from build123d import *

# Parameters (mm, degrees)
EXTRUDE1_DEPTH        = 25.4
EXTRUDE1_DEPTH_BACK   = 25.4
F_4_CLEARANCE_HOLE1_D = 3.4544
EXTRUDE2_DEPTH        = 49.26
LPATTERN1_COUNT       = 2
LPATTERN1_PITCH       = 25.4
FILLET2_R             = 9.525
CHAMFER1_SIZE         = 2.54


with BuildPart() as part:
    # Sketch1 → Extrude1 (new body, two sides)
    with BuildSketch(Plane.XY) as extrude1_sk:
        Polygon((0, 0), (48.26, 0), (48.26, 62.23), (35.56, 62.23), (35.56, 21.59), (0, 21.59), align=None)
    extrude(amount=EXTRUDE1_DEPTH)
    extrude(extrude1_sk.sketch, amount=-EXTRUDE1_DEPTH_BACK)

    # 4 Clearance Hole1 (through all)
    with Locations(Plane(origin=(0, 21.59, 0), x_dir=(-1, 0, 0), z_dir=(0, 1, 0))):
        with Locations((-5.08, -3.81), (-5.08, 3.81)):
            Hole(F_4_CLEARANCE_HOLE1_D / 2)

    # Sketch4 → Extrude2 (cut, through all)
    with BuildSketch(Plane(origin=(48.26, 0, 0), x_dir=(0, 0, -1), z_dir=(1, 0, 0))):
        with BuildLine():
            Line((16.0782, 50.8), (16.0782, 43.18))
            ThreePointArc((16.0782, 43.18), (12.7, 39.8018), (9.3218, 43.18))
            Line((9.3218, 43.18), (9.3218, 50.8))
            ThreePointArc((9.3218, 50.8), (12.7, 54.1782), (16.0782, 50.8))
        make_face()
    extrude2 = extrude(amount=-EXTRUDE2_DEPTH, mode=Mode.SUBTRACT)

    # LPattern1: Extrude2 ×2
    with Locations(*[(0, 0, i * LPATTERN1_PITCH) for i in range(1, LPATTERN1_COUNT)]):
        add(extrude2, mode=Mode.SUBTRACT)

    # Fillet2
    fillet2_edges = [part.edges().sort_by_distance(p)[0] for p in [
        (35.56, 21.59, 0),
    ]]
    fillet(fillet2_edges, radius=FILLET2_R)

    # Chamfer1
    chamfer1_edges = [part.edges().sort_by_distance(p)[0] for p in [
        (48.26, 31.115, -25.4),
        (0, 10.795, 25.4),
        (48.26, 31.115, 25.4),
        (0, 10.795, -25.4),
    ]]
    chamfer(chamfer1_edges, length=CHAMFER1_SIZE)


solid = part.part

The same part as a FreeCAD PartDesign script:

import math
import FreeCAD as App
import Part
import Sketcher

V = App.Vector
Q = App.Units.Quantity


def edges_at(feature, points):
    """Names of the edges that pass closest to the given points."""
    edges = feature.Shape.Edges
    near = lambda p: min(range(len(edges)), key=lambda i: edges[i].distToShape(Part.Vertex(*p))[0])
    return sorted({f"Edge{near(p) + 1}" for p in points})


def add_polygon(sketch, points):
    """Adds a closed chain of lines whose ends are joined by coincident constraints."""
    first, n = sketch.GeometryCount, len(points)
    for a, b in zip(points, points[1:] + points[:1]):
        sketch.addGeometry(Part.LineSegment(App.Vector(*a, 0), App.Vector(*b, 0)), False)
    for i in range(n):
        sketch.addConstraint(Sketcher.Constraint("Coincident", first + i, 2, first + (i + 1) % n, 1))

doc = App.newDocument("Part")
params = doc.addObject("Spreadsheet::Sheet", "Params")
for row, (alias, value) in enumerate([
    ("sketch1_width", "1.9 in"),
    ("sketch1_width2", "0.5 in"),
    ("sketch1_height", "1.6 in"),
    ("sketch1_height2", "2.45 in"),
    ("pad1_length", "1 in"),
    ("pad1_length2", "1 in"),
    ("sketch2_diameter", "0.136 in"),
    ("hole_diameter", "0.136 in"),
    ("sketch3_width", "0.3 in"),
    ("sketch3_radius", "0.133 in"),
    ("linearpattern_pitch", "1 in"),
    ("fillet_radius", "0.375 in"),
    ("chamfer_size", "0.1 in"),
], start=1):
    params.set(f"A{row}", alias)
    params.set(f"B{row}", "=" + value)
    params.setAlias(f"B{row}", alias)

body = doc.addObject("PartDesign::Body", "Body")

sketch1 = doc.addObject("Sketcher::SketchObject", "Sketch")
body.addObject(sketch1)
sketch1.AttachmentSupport = (doc.XY_Plane, [""])
sketch1.MapMode = "FlatFace"
add_polygon(sketch1, [(0, 0), (48.26, 0), (48.26, 62.23), (35.56, 62.23), (35.56, 21.59), (0, 21.59)])
sketch1.addConstraint(Sketcher.Constraint("Horizontal", 0))
sketch1.addConstraint(Sketcher.Constraint("Vertical", 1))
sketch1.addConstraint(Sketcher.Constraint("Horizontal", 2))
sketch1.addConstraint(Sketcher.Constraint("Vertical", 3))
sketch1.addConstraint(Sketcher.Constraint("Horizontal", 4))
sketch1.addConstraint(Sketcher.Constraint("Vertical", 5))
sketch1.addConstraint(Sketcher.Constraint("Coincident", 5, 2, -1, 1))
sketch1.addConstraint(Sketcher.Constraint("DistanceX", 0, 1, 0, 2, Q("1.9 in")))
sketch1.addConstraint(Sketcher.Constraint("DistanceX", 2, 2, 2, 1, Q("0.5 in")))
sketch1.addConstraint(Sketcher.Constraint("DistanceY", 3, 2, 3, 1, Q("1.6 in")))
sketch1.addConstraint(Sketcher.Constraint("DistanceY", 1, 1, 1, 2, Q("2.45 in")))
sketch1.setExpression("Constraints[13]", "Params.sketch1_width")
sketch1.setExpression("Constraints[14]", "Params.sketch1_width2")
sketch1.setExpression("Constraints[15]", "Params.sketch1_height")
sketch1.setExpression("Constraints[16]", "Params.sketch1_height2")
pad1 = doc.addObject("PartDesign::Pad", "Pad")
body.addObject(pad1)
pad1.Profile = sketch1
pad1.Type = "TwoLengths"
pad1.setExpression("Length", "Params.pad1_length")
pad1.setExpression("Length2", "Params.pad1_length2")

sketch2 = doc.addObject("Sketcher::SketchObject", "Sketch001")
body.addObject(sketch2)
sketch2.AttachmentSupport = (doc.XZ_Plane, [""])
sketch2.MapMode = "FlatFace"
sketch2.AttachmentOffset = App.Placement(V(0, 0, -0.85 * 25.4), App.Rotation())
sketch2.addGeometry(Part.Circle(V(5.08, -3.81, 0), V(0, 0, 1), 1.7272), False)
sketch2.addGeometry(Part.Circle(V(5.08, 3.81, 0), V(0, 0, 1), 1.7272), False)
sketch2.addConstraint(Sketcher.Constraint("Equal", 0, 1))
sketch2.addConstraint(Sketcher.Constraint("Symmetric", 0, 3, 1, 3, -1))
sketch2.addConstraint(Sketcher.Constraint("Diameter", 0, Q("0.136 in")))
sketch2.addConstraint(Sketcher.Constraint("DistanceX", -1, 1, 0, 3, Q("0.2 in")))
sketch2.addConstraint(Sketcher.Constraint("DistanceY", 0, 3, 1, 3, Q("0.3 in")))
sketch2.setExpression("Constraints[2]", "Params.sketch2_diameter")
doc.recompute()
hole = doc.addObject("PartDesign::Hole", "Hole")
body.addObject(hole)
hole.Profile = sketch2
hole.ThreadType = "None"
hole.setExpression("Diameter", "Params.hole_diameter")
hole.DepthType = "ThroughAll"
hole.Reversed = True

sketch3 = doc.addObject("Sketcher::SketchObject", "Sketch002")
body.addObject(sketch3)
sketch3.AttachmentSupport = (doc.YZ_Plane, [""])
sketch3.MapMode = "FlatFace"
sketch3.AttachmentOffset = App.Placement(V(0, 0, 1.9 * 25.4), App.Rotation())
sketch3.addGeometry(Part.LineSegment(V(43.18, -16.0782, 0), V(50.8, -16.0782, 0)), False)
sketch3.addGeometry(Part.ArcOfCircle(Part.Circle(V(50.8, -12.7, 0), V(0, 0, 1), 3.3782), math.radians(-90), math.radians(90)), False)
sketch3.addGeometry(Part.LineSegment(V(50.8, -9.3218, 0), V(43.18, -9.3218, 0)), False)
sketch3.addGeometry(Part.ArcOfCircle(Part.Circle(V(43.18, -12.7, 0), V(0, 0, 1), 3.3782), math.radians(90), math.radians(270)), False)
sketch3.addConstraint(Sketcher.Constraint("Tangent", 0, 2, 1, 1))
sketch3.addConstraint(Sketcher.Constraint("Tangent", 1, 2, 2, 1))
sketch3.addConstraint(Sketcher.Constraint("Tangent", 2, 2, 3, 1))
sketch3.addConstraint(Sketcher.Constraint("Tangent", 3, 2, 0, 1))
sketch3.addConstraint(Sketcher.Constraint("Horizontal", 0))
sketch3.addConstraint(Sketcher.Constraint("Horizontal", 2))
sketch3.addConstraint(Sketcher.Constraint("DistanceX", 0, 1, 0, 2, Q("0.3 in")))
sketch3.addConstraint(Sketcher.Constraint("DistanceX", -1, 1, 1, 3, Q("2 in")))
sketch3.addConstraint(Sketcher.Constraint("Radius", 1, Q("0.133 in")))
sketch3.addConstraint(Sketcher.Constraint("DistanceY", 1, 3, -1, 1, Q("0.5 in")))
sketch3.setExpression("Constraints[6]", "Params.sketch3_width")
sketch3.setExpression("Constraints[8]", "Params.sketch3_radius")
pocket1 = doc.addObject("PartDesign::Pocket", "Pocket")
body.addObject(pocket1)
pocket1.Profile = sketch3
pocket1.Type = "ThroughAll"
doc.recompute()

linearpattern = doc.addObject("PartDesign::LinearPattern", "LinearPattern")
body.addObject(linearpattern)
linearpattern.Originals = [pocket1]
linearpattern.Direction = (doc.Z_Axis, [""])
linearpattern.Mode = "offset"
linearpattern.setExpression("Offset", "Params.linearpattern_pitch")
linearpattern.Occurrences = 2
body.Tip = linearpattern
doc.recompute()

fillet = doc.addObject("PartDesign::Fillet", "Fillet")
body.addObject(fillet)
fillet.Base = (linearpattern, edges_at(linearpattern, [(35.56, 21.59, 0)]))
fillet.setExpression("Radius", "Params.fillet_radius")
doc.recompute()

chamfer = doc.addObject("PartDesign::Chamfer", "Chamfer")
body.addObject(chamfer)
chamfer.Base = (fillet, edges_at(fillet, [
    (48.26, 31.115, -25.4),
    (0, 10.795, 25.4),
    (48.26, 31.115, 25.4),
    (0, 10.795, -25.4),
]))
chamfer.setExpression("Size", "Params.chamfer_size")

doc.recompute()
